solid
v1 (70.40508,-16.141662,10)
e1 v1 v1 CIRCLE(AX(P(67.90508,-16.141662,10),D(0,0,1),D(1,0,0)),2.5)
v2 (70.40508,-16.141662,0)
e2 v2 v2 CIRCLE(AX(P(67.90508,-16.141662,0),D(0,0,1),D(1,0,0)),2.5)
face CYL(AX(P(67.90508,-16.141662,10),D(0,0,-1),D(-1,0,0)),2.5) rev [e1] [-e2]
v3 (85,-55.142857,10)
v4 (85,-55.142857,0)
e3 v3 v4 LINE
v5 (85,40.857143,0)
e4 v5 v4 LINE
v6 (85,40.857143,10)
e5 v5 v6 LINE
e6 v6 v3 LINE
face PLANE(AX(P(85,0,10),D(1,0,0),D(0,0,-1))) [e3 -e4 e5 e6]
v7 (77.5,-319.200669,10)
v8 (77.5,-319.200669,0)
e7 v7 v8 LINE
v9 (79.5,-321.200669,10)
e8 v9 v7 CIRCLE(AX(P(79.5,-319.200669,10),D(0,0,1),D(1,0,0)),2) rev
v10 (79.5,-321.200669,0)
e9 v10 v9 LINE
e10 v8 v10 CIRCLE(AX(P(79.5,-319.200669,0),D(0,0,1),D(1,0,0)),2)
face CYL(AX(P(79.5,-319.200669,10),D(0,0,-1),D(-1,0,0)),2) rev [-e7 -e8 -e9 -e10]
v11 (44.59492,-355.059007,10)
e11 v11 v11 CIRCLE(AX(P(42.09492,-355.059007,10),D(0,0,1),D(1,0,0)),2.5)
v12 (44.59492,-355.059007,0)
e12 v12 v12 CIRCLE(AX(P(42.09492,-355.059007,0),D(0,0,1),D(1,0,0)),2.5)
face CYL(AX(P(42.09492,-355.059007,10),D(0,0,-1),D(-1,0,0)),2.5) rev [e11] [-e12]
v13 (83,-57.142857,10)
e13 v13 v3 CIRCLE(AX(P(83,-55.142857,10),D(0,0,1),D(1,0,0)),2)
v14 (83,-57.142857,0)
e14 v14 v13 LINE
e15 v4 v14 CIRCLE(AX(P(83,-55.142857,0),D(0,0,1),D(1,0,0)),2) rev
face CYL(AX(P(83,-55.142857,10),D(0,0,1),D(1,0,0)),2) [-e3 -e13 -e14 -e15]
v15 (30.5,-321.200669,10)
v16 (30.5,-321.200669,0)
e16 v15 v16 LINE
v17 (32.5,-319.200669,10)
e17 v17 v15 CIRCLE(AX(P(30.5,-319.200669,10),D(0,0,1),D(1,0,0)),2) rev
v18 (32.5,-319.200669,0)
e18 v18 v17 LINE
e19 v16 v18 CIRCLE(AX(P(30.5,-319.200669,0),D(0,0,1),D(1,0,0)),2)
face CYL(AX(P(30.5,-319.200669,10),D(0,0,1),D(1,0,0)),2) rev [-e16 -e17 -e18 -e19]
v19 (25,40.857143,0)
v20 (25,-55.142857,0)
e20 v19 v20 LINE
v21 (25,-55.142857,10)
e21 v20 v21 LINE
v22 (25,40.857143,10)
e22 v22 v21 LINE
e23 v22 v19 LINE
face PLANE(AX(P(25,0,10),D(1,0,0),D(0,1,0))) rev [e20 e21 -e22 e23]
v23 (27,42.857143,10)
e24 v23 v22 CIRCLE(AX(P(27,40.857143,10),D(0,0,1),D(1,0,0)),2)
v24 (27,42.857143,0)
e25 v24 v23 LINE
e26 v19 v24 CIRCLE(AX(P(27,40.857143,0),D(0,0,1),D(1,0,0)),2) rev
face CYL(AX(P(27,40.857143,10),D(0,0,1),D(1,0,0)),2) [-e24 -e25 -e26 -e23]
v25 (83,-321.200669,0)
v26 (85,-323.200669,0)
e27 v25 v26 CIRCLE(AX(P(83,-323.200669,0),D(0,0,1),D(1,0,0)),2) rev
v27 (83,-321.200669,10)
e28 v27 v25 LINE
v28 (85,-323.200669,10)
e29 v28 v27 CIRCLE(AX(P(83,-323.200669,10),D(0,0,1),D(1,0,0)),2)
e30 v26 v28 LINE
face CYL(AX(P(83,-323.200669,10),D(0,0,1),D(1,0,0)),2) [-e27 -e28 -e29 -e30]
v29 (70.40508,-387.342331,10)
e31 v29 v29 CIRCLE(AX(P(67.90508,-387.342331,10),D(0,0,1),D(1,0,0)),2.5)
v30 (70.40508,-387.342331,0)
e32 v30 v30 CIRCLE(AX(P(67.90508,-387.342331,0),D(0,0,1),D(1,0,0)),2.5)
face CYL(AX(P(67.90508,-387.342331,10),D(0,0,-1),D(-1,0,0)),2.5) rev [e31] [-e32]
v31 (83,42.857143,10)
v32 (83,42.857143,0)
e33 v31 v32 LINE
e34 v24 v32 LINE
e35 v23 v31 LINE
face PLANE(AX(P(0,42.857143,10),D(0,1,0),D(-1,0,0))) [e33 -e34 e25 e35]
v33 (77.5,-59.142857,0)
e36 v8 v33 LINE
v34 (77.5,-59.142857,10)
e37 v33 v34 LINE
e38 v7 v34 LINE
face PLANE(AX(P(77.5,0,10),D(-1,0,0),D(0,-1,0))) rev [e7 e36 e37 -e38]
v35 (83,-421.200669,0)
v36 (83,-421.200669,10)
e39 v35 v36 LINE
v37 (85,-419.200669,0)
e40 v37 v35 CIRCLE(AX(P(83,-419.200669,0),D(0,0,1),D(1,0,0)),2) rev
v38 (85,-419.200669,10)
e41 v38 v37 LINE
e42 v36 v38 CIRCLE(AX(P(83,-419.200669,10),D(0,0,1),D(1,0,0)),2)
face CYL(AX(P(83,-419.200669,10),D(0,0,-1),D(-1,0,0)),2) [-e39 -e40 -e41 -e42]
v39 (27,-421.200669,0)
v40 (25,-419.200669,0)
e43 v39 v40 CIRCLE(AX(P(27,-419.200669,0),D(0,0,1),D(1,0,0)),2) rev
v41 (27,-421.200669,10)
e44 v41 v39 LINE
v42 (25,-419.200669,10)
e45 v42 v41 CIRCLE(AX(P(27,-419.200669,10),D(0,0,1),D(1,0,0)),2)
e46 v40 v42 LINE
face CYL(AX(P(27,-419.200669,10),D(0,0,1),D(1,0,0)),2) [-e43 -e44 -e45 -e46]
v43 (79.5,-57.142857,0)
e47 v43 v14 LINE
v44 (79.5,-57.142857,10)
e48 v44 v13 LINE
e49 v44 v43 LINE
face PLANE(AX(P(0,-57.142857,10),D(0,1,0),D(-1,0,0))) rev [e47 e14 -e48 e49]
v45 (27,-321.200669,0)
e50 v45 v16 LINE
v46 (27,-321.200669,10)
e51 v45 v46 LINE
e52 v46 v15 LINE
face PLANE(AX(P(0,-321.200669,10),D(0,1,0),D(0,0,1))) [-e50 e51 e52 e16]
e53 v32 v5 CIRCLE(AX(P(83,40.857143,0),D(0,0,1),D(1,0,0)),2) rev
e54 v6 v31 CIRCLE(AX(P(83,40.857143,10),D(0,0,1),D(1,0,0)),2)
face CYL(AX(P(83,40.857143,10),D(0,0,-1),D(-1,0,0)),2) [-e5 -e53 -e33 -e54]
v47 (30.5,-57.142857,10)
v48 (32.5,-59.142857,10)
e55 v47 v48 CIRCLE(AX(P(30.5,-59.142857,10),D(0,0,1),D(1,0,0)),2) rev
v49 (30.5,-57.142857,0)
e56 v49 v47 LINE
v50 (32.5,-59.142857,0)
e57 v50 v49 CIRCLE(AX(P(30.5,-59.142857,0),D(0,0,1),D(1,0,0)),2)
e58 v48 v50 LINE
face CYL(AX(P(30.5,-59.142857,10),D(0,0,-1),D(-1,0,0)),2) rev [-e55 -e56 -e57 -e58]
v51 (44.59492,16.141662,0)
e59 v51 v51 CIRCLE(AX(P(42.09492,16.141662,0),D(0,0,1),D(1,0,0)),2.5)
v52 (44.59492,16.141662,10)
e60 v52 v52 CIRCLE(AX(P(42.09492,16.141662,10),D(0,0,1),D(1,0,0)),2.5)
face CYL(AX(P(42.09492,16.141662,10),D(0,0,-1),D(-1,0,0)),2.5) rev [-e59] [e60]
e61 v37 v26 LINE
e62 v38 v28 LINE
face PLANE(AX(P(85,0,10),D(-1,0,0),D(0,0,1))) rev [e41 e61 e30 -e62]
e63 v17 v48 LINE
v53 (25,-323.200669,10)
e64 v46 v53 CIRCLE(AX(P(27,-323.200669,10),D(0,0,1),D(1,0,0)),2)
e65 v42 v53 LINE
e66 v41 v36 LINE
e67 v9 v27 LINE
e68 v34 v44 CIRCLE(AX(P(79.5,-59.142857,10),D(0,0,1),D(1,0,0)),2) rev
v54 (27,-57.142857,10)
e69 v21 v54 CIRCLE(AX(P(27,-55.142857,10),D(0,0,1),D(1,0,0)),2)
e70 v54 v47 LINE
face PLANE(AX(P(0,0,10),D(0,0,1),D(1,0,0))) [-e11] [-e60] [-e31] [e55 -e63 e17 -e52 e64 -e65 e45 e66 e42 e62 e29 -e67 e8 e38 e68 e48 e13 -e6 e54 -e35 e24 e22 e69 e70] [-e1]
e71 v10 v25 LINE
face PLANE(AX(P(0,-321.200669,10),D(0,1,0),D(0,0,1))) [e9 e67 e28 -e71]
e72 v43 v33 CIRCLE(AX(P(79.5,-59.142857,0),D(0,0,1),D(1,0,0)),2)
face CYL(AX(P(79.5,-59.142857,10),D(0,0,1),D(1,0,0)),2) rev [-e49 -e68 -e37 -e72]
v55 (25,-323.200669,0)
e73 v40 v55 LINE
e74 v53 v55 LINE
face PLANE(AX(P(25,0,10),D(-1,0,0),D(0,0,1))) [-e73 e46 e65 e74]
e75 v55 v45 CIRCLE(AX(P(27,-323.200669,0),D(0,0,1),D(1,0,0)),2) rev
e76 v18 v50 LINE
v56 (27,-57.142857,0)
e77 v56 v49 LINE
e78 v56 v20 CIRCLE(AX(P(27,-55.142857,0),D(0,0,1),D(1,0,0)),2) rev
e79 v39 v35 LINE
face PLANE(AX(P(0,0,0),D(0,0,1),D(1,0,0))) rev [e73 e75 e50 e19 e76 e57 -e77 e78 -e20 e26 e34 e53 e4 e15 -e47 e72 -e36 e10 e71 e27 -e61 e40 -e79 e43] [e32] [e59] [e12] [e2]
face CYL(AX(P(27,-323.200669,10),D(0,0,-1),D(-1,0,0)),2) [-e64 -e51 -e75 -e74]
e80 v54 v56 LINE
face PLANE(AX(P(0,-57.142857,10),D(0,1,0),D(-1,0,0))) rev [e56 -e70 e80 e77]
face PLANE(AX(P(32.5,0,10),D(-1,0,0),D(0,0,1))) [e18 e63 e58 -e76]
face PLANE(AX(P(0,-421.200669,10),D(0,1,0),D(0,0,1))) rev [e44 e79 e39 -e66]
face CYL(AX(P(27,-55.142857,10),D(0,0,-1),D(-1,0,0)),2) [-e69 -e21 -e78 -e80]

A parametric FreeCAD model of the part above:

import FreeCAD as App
import Part
import Sketcher

V = App.Vector
Q = App.Units.Quantity


def edges_at(feature, points):
    """Names of the edges that pass closest to the given points."""
    edges = feature.Shape.Edges
    near = lambda p: min(range(len(edges)), key=lambda i: edges[i].distToShape(Part.Vertex(*p))[0])
    return sorted({f"Edge{near(p) + 1}" for p in points})

doc = App.newDocument("Part")
body = doc.addObject("PartDesign::Body", "Body")

# Sketch on XY plane
sketch1 = doc.addObject("Sketcher::SketchObject", "Sketch")
body.addObject(sketch1)
sketch1.AttachmentSupport = (doc.XY_Plane, [""])
sketch1.MapMode = "FlatFace"
sketch1.addGeometry(Part.LineSegment(V(25, -321.2, 0), V(25, -421.2, 0)), False)
sketch1.addGeometry(Part.LineSegment(V(25, -421.2, 0), V(85, -421.2, 0)), False)
sketch1.addGeometry(Part.LineSegment(V(85, -421.2, 0), V(85, -321.2, 0)), False)
sketch1.addGeometry(Part.LineSegment(V(85, -321.2, 0), V(77.5, -321.2, 0)), False)
sketch1.addGeometry(Part.LineSegment(V(77.5, -321.2, 0), V(77.5, -57.1, 0)), False)
sketch1.addGeometry(Part.LineSegment(V(77.5, -57.1, 0), V(85, -57.1, 0)), False)
sketch1.addGeometry(Part.LineSegment(V(85, -57.1, 0), V(85, 42.9, 0)), False)
sketch1.addGeometry(Part.LineSegment(V(85, 42.9, 0), V(25, 42.9, 0)), False)
sketch1.addGeometry(Part.LineSegment(V(25, 42.9, 0), V(25, -57.1, 0)), False)
sketch1.addGeometry(Part.LineSegment(V(25, -57.1, 0), V(32.5, -57.1, 0)), False)
sketch1.addGeometry(Part.LineSegment(V(32.5, -57.1, 0), V(32.5, -321.2, 0)), False)
sketch1.addGeometry(Part.LineSegment(V(32.5, -321.2, 0), V(25, -321.2, 0)), False)
sketch1.addGeometry(Part.Circle(V(67.9, -387.3, 0), V(0, 0, 1), 2.5), False)
sketch1.addGeometry(Part.Circle(V(42.1, -355.1, 0), V(0, 0, 1), 2.5), False)
sketch1.addGeometry(Part.Circle(V(42.1, 16.1, 0), V(0, 0, 1), 2.5), False)
sketch1.addGeometry(Part.Circle(V(67.9, -16.1, 0), V(0, 0, 1), 2.5), False)
sketch1.addConstraint(Sketcher.Constraint("Coincident", 0, 2, 1, 1))
sketch1.addConstraint(Sketcher.Constraint("Coincident", 1, 2, 2, 1))
sketch1.addConstraint(Sketcher.Constraint("Coincident", 2, 2, 3, 1))
sketch1.addConstraint(Sketcher.Constraint("Coincident", 3, 2, 4, 1))
sketch1.addConstraint(Sketcher.Constraint("Coincident", 4, 2, 5, 1))
sketch1.addConstraint(Sketcher.Constraint("Coincident", 5, 2, 6, 1))
sketch1.addConstraint(Sketcher.Constraint("Coincident", 6, 2, 7, 1))
sketch1.addConstraint(Sketcher.Constraint("Coincident", 7, 2, 8, 1))
sketch1.addConstraint(Sketcher.Constraint("Coincident", 8, 2, 9, 1))
sketch1.addConstraint(Sketcher.Constraint("Coincident", 9, 2, 10, 1))
sketch1.addConstraint(Sketcher.Constraint("Coincident", 10, 2, 11, 1))
sketch1.addConstraint(Sketcher.Constraint("Coincident", 11, 2, 0, 1))
sketch1.addConstraint(Sketcher.Constraint("Vertical", 0))
sketch1.addConstraint(Sketcher.Constraint("Horizontal", 1))
sketch1.addConstraint(Sketcher.Constraint("Vertical", 2))
sketch1.addConstraint(Sketcher.Constraint("Horizontal", 3))
sketch1.addConstraint(Sketcher.Constraint("Vertical", 4))
sketch1.addConstraint(Sketcher.Constraint("Horizontal", 5))
sketch1.addConstraint(Sketcher.Constraint("Vertical", 6))
sketch1.addConstraint(Sketcher.Constraint("Horizontal", 7))
sketch1.addConstraint(Sketcher.Constraint("Vertical", 8))
sketch1.addConstraint(Sketcher.Constraint("Horizontal", 9))
sketch1.addConstraint(Sketcher.Constraint("Vertical", 10))
sketch1.addConstraint(Sketcher.Constraint("Horizontal", 11))
sketch1.addConstraint(Sketcher.Constraint("Equal", 12, 13))
sketch1.addConstraint(Sketcher.Constraint("Equal", 13, 14))
sketch1.addConstraint(Sketcher.Constraint("Equal", 14, 15))
sketch1.addConstraint(Sketcher.Constraint("Horizontal", 5, 2, 8, 2))
sketch1.addConstraint(Sketcher.Constraint("Horizontal", 3, 2, 10, 2))
sketch1.addConstraint(Sketcher.Constraint("Vertical", 13, 3, 14, 3))
sketch1.addConstraint(Sketcher.Constraint("Vertical", 12, 3, 15, 3))
sketch1.addConstraint(Sketcher.Constraint("Vertical", 2, 2, 5, 2))
sketch1.addConstraint(Sketcher.Constraint("Vertical", 0, 2, 7, 2))
sketch1.addConstraint(Sketcher.Constraint("Equal", 5, 9))
sketch1.addConstraint(Sketcher.Constraint("Equal", 2, 6))
sketch1.addConstraint(Sketcher.Constraint("Diameter", 12, Q("5 mm")))
sketch1.addConstraint(Sketcher.Constraint("DistanceX", 1, 1, 1, 2, Q("60 mm")))
sketch1.addConstraint(Sketcher.Constraint("DistanceY", 0, 2, 0, 1, Q("100 mm")))
sketch1.addConstraint(Sketcher.Constraint("DistanceX", 3, 2, 3, 1, Q("7.5 mm")))
sketch1.addConstraint(Sketcher.Constraint("DistanceX", -1, 1, 0, 2, Q("25 mm")))
sketch1.addConstraint(Sketcher.Constraint("DistanceY", 4, 1, 4, 2, Q("264.057812 mm")))
sketch1.addConstraint(Sketcher.Constraint("DistanceX", -1, 1, 12, 3, Q("67.90508 mm")))
sketch1.addConstraint(Sketcher.Constraint("DistanceY", 12, 3, -1, 1, Q("387.342331 mm")))
sketch1.addConstraint(Sketcher.Constraint("DistanceX", -1, 1, 13, 3, Q("42.09492 mm")))
sketch1.addConstraint(Sketcher.Constraint("DistanceY", 0, 2, -1, 1, Q("421.200669 mm")))
sketch1.addConstraint(Sketcher.Constraint("DistanceY", 13, 3, 14, 3, Q("371.200669 mm")))
sketch1.addConstraint(Sketcher.Constraint("DistanceY", 12, 3, 15, 3, Q("371.200669 mm")))
sketch1.addConstraint(Sketcher.Constraint("DistanceY", 0, 2, 14, 3, Q("437.342331 mm")))
pad1 = doc.addObject("PartDesign::Pad", "Pad")
body.addObject(pad1)
pad1.Profile = sketch1
pad1.Length = 10
doc.recompute()

fillet = doc.addObject("PartDesign::Fillet", "Fillet")
body.addObject(fillet)
fillet.Base = (pad1, edges_at(pad1, [
    (25, -421.201, 5),
    (25, -321.201, 5),
    (32.5, -321.201, 5),
    (32.5, -57.143, 5),
    (25, -57.143, 5),
    (25, 42.857, 5),
    (85, 42.857, 5),
    (85, -57.143, 5),
    (77.5, -57.143, 5),
    (77.5, -321.201, 5),
    (85, -321.201, 5),
    (85, -421.201, 5),
]))
fillet.Radius = 2

doc.recompute()
